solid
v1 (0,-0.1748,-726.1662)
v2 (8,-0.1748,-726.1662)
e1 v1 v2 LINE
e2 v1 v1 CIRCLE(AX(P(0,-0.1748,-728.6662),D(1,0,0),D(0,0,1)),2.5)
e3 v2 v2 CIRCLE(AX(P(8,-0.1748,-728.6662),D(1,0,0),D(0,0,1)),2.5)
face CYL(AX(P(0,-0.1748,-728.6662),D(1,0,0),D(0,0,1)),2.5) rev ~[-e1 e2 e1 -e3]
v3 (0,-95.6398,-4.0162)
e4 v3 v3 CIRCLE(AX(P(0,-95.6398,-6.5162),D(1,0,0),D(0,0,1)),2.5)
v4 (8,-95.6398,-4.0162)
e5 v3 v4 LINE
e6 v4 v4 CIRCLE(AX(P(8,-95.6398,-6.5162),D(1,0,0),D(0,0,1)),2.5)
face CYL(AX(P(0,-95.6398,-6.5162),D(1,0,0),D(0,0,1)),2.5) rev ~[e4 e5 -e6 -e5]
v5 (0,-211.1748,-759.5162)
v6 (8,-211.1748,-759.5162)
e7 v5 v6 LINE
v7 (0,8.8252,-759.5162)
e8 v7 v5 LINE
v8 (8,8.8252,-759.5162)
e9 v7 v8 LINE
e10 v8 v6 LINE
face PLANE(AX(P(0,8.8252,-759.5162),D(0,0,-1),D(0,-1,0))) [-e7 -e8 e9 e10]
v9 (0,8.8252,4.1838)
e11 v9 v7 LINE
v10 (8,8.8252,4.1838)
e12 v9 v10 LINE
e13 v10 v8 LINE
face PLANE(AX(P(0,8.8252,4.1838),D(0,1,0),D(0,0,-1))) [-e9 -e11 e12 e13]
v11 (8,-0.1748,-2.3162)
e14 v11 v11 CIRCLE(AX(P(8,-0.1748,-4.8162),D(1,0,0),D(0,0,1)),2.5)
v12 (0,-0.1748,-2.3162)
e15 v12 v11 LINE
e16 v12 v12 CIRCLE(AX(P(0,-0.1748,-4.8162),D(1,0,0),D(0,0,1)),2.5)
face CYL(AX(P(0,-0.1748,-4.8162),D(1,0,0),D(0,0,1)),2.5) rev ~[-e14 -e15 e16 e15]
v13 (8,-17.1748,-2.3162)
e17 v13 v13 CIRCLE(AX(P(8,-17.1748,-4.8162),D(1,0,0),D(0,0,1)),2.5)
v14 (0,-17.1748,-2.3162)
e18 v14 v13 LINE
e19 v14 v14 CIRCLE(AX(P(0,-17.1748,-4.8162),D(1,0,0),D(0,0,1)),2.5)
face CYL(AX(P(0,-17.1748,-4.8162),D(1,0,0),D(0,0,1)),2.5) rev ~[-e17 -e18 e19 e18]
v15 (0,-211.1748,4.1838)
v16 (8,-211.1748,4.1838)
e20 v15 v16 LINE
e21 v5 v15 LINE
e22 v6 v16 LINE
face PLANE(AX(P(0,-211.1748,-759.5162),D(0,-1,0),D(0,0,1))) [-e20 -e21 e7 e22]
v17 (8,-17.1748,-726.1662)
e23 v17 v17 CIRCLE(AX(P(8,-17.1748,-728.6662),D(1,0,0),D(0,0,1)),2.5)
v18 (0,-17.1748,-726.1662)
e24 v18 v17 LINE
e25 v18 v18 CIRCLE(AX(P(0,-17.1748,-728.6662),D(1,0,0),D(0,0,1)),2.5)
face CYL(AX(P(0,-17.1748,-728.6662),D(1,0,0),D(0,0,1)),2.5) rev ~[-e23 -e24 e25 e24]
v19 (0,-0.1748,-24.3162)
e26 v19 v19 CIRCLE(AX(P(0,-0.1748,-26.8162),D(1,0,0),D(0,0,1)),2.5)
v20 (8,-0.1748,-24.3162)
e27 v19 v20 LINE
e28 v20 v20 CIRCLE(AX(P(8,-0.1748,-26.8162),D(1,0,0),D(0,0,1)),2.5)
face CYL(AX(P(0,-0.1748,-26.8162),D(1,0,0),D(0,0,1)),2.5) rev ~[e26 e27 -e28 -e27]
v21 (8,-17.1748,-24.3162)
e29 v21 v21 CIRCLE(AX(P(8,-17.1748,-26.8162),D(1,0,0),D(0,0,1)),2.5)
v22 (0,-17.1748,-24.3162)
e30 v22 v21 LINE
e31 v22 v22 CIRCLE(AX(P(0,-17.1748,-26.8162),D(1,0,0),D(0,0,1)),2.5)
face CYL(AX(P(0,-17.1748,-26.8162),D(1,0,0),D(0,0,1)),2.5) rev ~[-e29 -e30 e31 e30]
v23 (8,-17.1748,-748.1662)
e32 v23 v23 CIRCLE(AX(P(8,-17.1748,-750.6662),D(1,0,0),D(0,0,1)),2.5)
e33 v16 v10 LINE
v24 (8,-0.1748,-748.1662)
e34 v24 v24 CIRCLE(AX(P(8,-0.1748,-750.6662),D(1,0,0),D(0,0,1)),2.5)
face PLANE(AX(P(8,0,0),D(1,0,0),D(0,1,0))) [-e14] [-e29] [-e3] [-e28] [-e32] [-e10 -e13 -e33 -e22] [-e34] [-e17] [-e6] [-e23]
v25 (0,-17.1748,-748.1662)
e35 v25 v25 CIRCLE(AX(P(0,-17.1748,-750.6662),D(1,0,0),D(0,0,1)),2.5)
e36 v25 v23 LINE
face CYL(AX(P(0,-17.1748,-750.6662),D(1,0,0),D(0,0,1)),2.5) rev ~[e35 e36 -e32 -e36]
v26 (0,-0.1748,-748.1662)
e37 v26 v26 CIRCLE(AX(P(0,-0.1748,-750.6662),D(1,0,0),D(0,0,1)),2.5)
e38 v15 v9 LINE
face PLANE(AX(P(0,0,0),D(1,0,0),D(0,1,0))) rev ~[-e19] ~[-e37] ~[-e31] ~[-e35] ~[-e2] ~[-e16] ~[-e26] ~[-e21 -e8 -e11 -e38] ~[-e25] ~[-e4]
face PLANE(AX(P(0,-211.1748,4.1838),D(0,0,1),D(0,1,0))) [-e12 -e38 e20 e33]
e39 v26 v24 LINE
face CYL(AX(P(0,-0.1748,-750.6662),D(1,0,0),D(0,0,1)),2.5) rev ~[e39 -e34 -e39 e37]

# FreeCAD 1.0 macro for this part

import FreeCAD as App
import Part
import Sketcher

V = App.Vector

doc = App.newDocument("Part")
body = doc.addObject("PartDesign::Body", "Body")

# Sketch on YZ plane
sketch1 = doc.addObject("Sketcher::SketchObject", "Sketch")
body.addObject(sketch1)
sketch1.AttachmentSupport = (doc.YZ_Plane, [""])
sketch1.MapMode = "FlatFace"
sketch1.addGeometry([
    Part.LineSegment(V(8.8252, 4.1838, 0), V(-211.1748, 4.1838, 0)),
    Part.LineSegment(V(-211.1748, 4.1838, 0), V(-211.1748, -759.5162, 0)),
    Part.LineSegment(V(-211.1748, -759.5162, 0), V(8.8252, -759.5162, 0)),
    Part.LineSegment(V(8.8252, -759.5162, 0), V(8.8252, 4.1838, 0)),
], False)
sketch1.addConstraint([
    Sketcher.Constraint("Coincident", 0, 2, 1, 1),
    Sketcher.Constraint("Coincident", 1, 2, 2, 1),
    Sketcher.Constraint("Coincident", 2, 2, 3, 1),
    Sketcher.Constraint("Coincident", 3, 2, 0, 1),
    Sketcher.Constraint("Horizontal", 0),
    Sketcher.Constraint("Vertical", 1),
    Sketcher.Constraint("Horizontal", 2),
    Sketcher.Constraint("Vertical", 3),
    Sketcher.Constraint("DistanceX", 0, 2, 0, 1, 220.0),
    Sketcher.Constraint("DistanceY", 1, 2, 1, 1, 763.7),
    Sketcher.Constraint("DistanceX", 0, 2, -1, 1, 211.1748),
    Sketcher.Constraint("DistanceY", -1, 1, 0, 2, 4.1838),
])
pad1 = doc.addObject("PartDesign::Pad", "Pad")
body.addObject(pad1)
pad1.Profile = sketch1
pad1.Length = 8

# Sketch on YZ plane
sketch2 = doc.addObject("Sketcher::SketchObject", "Sketch001")
body.addObject(sketch2)
sketch2.AttachmentSupport = (doc.YZ_Plane, [""])
sketch2.MapMode = "FlatFace"
sketch2.addGeometry(Part.Circle(V(-0.1748, -4.8162, 0), V(0, 0, 1), 2.5), False)
sketch2.addConstraint([
    Sketcher.Constraint("Diameter", 0, 5.0),
    Sketcher.Constraint("DistanceX", 0, 3, -1, 1, 0.1748),
    Sketcher.Constraint("DistanceY", 0, 3, -1, 1, 4.8162),
])
doc.recompute()
hole = doc.addObject("PartDesign::Hole", "Hole")
body.addObject(hole)
hole.Profile = sketch2
hole.ThreadType = "None"
hole.Diameter = 5
hole.DepthType = "ThroughAll"
hole.Reversed = True

# Sketch on YZ plane
sketch3 = doc.addObject("Sketcher::SketchObject", "Sketch002")
body.addObject(sketch3)
sketch3.AttachmentSupport = (doc.YZ_Plane, [""])
sketch3.MapMode = "FlatFace"
sketch3.addGeometry(Part.Circle(V(-17.1748, -4.8162, 0), V(0, 0, 1), 2.5), False)
sketch3.addConstraint([
    Sketcher.Constraint("Diameter", 0, 5.0),
    Sketcher.Constraint("DistanceX", 0, 3, -1, 1, 17.1748),
    Sketcher.Constraint("DistanceY", 0, 3, -1, 1, 4.8162),
])
doc.recompute()
hole2 = doc.addObject("PartDesign::Hole", "Hole001")
body.addObject(hole2)
hole2.Profile = sketch3
hole2.ThreadType = "None"
hole2.Diameter = 5
hole2.DepthType = "ThroughAll"
hole2.Reversed = True

# Sketch on YZ plane
sketch4 = doc.addObject("Sketcher::SketchObject", "Sketch003")
body.addObject(sketch4)
sketch4.AttachmentSupport = (doc.YZ_Plane, [""])
sketch4.MapMode = "FlatFace"
sketch4.addGeometry(Part.Circle(V(-17.1748, -26.8162, 0), V(0, 0, 1), 2.5), False)
sketch4.addConstraint([
    Sketcher.Constraint("Diameter", 0, 5.0),
    Sketcher.Constraint("DistanceX", 0, 3, -1, 1, 17.1748),
    Sketcher.Constraint("DistanceY", 0, 3, -1, 1, 26.8162),
])
doc.recompute()
hole3 = doc.addObject("PartDesign::Hole", "Hole002")
body.addObject(hole3)
hole3.Profile = sketch4
hole3.ThreadType = "None"
hole3.Diameter = 5
hole3.DepthType = "ThroughAll"
hole3.Reversed = True

# Sketch on YZ plane
sketch5 = doc.addObject("Sketcher::SketchObject", "Sketch004")
body.addObject(sketch5)
sketch5.AttachmentSupport = (doc.YZ_Plane, [""])
sketch5.MapMode = "FlatFace"
sketch5.addGeometry([
    Part.Circle(V(-0.1748, -26.8162, 0), V(0, 0, 1), 2.5),
    Part.Circle(V(-17.1748, -750.6662, 0), V(0, 0, 1), 2.5),
], False)
sketch5.addConstraint([
    Sketcher.Constraint("Equal", 0, 1),
    Sketcher.Constraint("Diameter", 0, 5.0),
    Sketcher.Constraint("DistanceX", 1, 3, 0, 3, 17.0),
    Sketcher.Constraint("DistanceY", 1, 3, 0, 3, 723.85),
    Sketcher.Constraint("DistanceX", 0, 3, -1, 1, 0.1748),
    Sketcher.Constraint("DistanceY", 0, 3, -1, 1, 26.8162),
])
doc.recompute()
hole4 = doc.addObject("PartDesign::Hole", "Hole003")
body.addObject(hole4)
hole4.Profile = sketch5
hole4.ThreadType = "None"
hole4.Diameter = 5
hole4.DepthType = "ThroughAll"
hole4.Reversed = True

# Sketch on YZ plane
sketch6 = doc.addObject("Sketcher::SketchObject", "Sketch005")
body.addObject(sketch6)
sketch6.AttachmentSupport = (doc.YZ_Plane, [""])
sketch6.MapMode = "FlatFace"
sketch6.addGeometry(Part.Circle(V(-0.1748, -750.6662, 0), V(0, 0, 1), 2.5), False)
sketch6.addConstraint([
    Sketcher.Constraint("Diameter", 0, 5.0),
    Sketcher.Constraint("DistanceX", 0, 3, -1, 1, 0.1748),
    Sketcher.Constraint("DistanceY", 0, 3, -1, 1, 750.6662),
])
doc.recompute()
hole5 = doc.addObject("PartDesign::Hole", "Hole004")
body.addObject(hole5)
hole5.Profile = sketch6
hole5.ThreadType = "None"
hole5.Diameter = 5
hole5.DepthType = "ThroughAll"
hole5.Reversed = True

# Sketch on YZ plane
sketch7 = doc.addObject("Sketcher::SketchObject", "Sketch006")
body.addObject(sketch7)
sketch7.AttachmentSupport = (doc.YZ_Plane, [""])
sketch7.MapMode = "FlatFace"
sketch7.addGeometry(Part.Circle(V(-0.1748, -728.6662, 0), V(0, 0, 1), 2.5), False)
sketch7.addConstraint([
    Sketcher.Constraint("Diameter", 0, 5.0),
    Sketcher.Constraint("DistanceX", 0, 3, -1, 1, 0.1748),
    Sketcher.Constraint("DistanceY", 0, 3, -1, 1, 728.6662),
])
doc.recompute()
hole6 = doc.addObject("PartDesign::Hole", "Hole005")
body.addObject(hole6)
hole6.Profile = sketch7
hole6.ThreadType = "None"
hole6.Diameter = 5
hole6.DepthType = "ThroughAll"
hole6.Reversed = True

# Sketch on YZ plane
sketch8 = doc.addObject("Sketcher::SketchObject", "Sketch007")
body.addObject(sketch8)
sketch8.AttachmentSupport = (doc.YZ_Plane, [""])
sketch8.MapMode = "FlatFace"
sketch8.addGeometry(Part.Circle(V(-17.1748, -728.6662, 0), V(0, 0, 1), 2.5), False)
sketch8.addConstraint([
    Sketcher.Constraint("Diameter", 0, 5.0),
    Sketcher.Constraint("DistanceX", 0, 3, -1, 1, 17.1748),
    Sketcher.Constraint("DistanceY", 0, 3, -1, 1, 728.6662),
])
doc.recompute()
hole7 = doc.addObject("PartDesign::Hole", "Hole006")
body.addObject(hole7)
hole7.Profile = sketch8
hole7.ThreadType = "None"
hole7.Diameter = 5
hole7.DepthType = "ThroughAll"
hole7.Reversed = True

# Sketch on YZ plane
sketch9 = doc.addObject("Sketcher::SketchObject", "Sketch008")
body.addObject(sketch9)
sketch9.AttachmentSupport = (doc.YZ_Plane, [""])
sketch9.MapMode = "FlatFace"
sketch9.addGeometry(Part.Circle(V(-95.6398, -6.5162, 0), V(0, 0, 1), 2.5), False)
sketch9.addConstraint([
    Sketcher.Constraint("Diameter", 0, 5.0),
    Sketcher.Constraint("DistanceX", 0, 3, -1, 1, 95.6398),
    Sketcher.Constraint("DistanceY", 0, 3, -1, 1, 6.5162),
])
doc.recompute()
hole8 = doc.addObject("PartDesign::Hole", "Hole007")
body.addObject(hole8)
hole8.Profile = sketch9
hole8.ThreadType = "None"
hole8.Diameter = 5
hole8.DepthType = "ThroughAll"
hole8.Reversed = True

doc.recompute()
